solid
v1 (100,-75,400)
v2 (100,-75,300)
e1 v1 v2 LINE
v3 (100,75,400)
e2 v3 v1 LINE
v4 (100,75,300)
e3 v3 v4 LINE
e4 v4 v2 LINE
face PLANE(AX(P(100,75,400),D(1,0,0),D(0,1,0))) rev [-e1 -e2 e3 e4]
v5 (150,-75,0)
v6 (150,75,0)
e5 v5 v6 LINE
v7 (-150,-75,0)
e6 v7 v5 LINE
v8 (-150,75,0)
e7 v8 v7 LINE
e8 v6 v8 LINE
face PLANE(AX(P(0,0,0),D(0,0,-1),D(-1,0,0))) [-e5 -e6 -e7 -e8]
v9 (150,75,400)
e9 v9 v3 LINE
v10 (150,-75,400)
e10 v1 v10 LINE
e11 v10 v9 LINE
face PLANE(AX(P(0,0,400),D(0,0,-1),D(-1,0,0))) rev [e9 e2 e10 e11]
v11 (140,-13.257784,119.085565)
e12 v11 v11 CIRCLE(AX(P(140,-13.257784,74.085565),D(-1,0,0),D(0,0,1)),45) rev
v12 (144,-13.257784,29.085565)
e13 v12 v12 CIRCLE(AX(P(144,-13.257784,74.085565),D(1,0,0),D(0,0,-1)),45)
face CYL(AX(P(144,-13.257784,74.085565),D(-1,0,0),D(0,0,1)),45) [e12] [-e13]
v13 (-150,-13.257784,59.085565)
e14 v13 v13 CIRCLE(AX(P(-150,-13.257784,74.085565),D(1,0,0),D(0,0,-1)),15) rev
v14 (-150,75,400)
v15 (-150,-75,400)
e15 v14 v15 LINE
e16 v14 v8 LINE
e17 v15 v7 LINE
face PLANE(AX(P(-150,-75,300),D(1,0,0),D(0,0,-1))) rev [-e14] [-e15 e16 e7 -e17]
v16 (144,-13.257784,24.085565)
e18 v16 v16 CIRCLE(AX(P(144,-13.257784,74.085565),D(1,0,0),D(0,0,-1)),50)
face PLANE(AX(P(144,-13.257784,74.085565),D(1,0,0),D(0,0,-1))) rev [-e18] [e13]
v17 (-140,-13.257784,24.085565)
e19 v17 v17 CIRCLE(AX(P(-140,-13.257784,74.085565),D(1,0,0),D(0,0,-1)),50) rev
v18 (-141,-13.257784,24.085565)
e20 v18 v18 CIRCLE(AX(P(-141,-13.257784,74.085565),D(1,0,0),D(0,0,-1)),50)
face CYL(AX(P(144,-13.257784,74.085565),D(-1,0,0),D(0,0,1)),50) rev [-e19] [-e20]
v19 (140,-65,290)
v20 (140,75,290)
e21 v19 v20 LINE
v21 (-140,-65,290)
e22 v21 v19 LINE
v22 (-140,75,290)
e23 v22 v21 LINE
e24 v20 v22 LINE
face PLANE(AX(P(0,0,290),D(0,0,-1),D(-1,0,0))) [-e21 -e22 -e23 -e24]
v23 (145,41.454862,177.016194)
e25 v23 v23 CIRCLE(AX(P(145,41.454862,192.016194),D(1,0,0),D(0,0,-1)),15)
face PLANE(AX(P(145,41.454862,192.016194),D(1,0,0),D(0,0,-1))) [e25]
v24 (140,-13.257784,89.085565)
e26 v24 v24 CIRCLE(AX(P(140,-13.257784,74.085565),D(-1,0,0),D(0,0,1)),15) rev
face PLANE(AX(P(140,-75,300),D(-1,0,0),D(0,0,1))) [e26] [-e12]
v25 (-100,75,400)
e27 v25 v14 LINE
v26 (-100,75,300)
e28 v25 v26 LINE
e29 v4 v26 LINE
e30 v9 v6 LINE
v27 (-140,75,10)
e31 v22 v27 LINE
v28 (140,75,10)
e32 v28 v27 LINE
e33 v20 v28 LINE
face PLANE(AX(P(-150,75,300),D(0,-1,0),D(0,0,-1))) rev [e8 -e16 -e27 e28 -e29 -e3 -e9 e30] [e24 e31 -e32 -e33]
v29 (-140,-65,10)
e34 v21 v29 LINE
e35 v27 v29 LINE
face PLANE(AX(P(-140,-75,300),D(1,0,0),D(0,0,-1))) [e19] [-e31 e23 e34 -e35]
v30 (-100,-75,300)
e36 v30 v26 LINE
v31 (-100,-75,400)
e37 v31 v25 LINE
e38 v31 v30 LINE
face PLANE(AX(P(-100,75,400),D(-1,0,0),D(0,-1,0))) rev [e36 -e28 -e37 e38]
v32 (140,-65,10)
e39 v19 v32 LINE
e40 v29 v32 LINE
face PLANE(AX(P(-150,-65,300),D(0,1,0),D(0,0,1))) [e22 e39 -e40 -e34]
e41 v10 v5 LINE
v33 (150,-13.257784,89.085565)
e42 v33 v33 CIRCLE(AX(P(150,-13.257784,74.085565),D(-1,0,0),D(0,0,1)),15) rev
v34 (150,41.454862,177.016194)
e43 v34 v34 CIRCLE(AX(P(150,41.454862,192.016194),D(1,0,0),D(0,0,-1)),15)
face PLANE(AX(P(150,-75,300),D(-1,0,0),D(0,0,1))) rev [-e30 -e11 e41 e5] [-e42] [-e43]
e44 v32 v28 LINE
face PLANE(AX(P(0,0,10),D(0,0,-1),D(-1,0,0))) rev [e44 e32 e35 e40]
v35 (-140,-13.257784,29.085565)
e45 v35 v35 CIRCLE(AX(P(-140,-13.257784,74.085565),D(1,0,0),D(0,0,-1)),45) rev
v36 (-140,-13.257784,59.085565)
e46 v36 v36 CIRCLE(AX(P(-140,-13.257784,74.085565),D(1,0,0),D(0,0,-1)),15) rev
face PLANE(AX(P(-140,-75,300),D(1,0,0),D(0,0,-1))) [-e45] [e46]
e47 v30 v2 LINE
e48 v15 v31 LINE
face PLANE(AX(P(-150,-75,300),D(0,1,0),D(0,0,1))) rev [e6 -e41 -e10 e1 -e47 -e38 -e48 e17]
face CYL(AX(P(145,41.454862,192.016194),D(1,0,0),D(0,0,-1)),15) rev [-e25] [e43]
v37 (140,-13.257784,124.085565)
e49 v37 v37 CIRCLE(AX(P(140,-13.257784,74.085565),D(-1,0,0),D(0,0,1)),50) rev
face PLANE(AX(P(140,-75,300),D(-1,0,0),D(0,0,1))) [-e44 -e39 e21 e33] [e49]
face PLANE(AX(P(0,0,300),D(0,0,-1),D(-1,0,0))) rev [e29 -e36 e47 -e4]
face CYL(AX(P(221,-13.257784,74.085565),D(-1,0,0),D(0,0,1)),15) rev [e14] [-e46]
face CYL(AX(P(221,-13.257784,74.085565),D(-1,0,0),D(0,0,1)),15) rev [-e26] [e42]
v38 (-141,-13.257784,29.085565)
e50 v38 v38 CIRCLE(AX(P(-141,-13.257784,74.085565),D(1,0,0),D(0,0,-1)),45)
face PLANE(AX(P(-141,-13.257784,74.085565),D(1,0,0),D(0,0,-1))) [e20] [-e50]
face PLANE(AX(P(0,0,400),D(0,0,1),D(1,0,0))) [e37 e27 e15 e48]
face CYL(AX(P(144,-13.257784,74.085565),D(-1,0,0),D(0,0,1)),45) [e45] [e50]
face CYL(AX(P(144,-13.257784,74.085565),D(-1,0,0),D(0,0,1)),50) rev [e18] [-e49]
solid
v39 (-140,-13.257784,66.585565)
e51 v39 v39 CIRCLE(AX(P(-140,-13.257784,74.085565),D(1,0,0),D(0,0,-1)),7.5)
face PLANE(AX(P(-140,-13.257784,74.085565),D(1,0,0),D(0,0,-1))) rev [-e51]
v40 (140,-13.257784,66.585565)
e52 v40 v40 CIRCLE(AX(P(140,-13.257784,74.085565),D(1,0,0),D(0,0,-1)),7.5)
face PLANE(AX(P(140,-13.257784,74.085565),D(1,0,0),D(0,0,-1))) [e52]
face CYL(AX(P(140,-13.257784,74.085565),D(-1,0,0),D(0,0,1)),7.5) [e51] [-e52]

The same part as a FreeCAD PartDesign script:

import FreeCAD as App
import Part
import Sketcher


def faces_at(feature, points):
    """Names of the faces that lie closest to the given points."""
    faces = feature.Shape.Faces
    near = lambda p: min(range(len(faces)), key=lambda i: faces[i].distToShape(Part.Vertex(*p))[0])
    return sorted({f"Face{near(p) + 1}" for p in points})


def add_polygon(sketch, points):
    """Adds a closed chain of lines whose ends are joined by coincident constraints."""
    first, n = sketch.GeometryCount, len(points)
    for a, b in zip(points, points[1:] + points[:1]):
        sketch.addGeometry(Part.LineSegment(App.Vector(*a, 0), App.Vector(*b, 0)), False)
    for i in range(n):
        sketch.addConstraint(Sketcher.Constraint("Coincident", first + i, 2, first + (i + 1) % n, 1))

doc = App.newDocument("Part")
body = doc.addObject("PartDesign::Body", "Body")

# Sketch on XY plane
sketch1 = body.newObject("Sketcher::SketchObject", "Sketch")
sketch1.AttachmentSupport = (doc.getObject("XY_Plane"), [""])
sketch1.MapMode = "FlatFace"
add_polygon(sketch1, [(-150, 75), (-150, -75), (150, -75), (150, 75)])  # lines 0-3
sketch1.addConstraint([
    Sketcher.Constraint("Vertical", 0),
    Sketcher.Constraint("Horizontal", 1),
    Sketcher.Constraint("Vertical", 2),
    Sketcher.Constraint("Horizontal", 3),
    Sketcher.Constraint("Symmetric", 0, 2, 2, 2, -1, 1),
    Sketcher.Constraint("DistanceX", 1, 1, 1, 2, 300.0),
    Sketcher.Constraint("DistanceY", 0, 2, 0, 1, 150.0),
])
pad1 = body.newObject("PartDesign::Pad", "Pad")
pad1.Profile = sketch1
pad1.Length = 300
doc.recompute()

thickness = body.newObject("PartDesign::Thickness", "Thickness")
thickness.Base = (pad1, faces_at(pad1, [(0, 75, 150)]))
thickness.Value = 10
thickness.Reversed = True
thickness.Join = "Intersection"

# Sketch on YZ plane
sketch2 = body.newObject("Sketcher::SketchObject", "Sketch001")
sketch2.AttachmentSupport = (doc.getObject("YZ_Plane"), [""])
sketch2.MapMode = "FlatFace"
sketch2.AttachmentOffset = App.Placement(App.Vector(0, 0, -140), App.Rotation())
sketch2.addGeometry([
    Part.Circle(App.Vector(-13, 74, 0), App.Vector(0, 0, 1), 50),
    Part.Circle(App.Vector(-13, 74, 0), App.Vector(0, 0, 1), 45),
], False)
sketch2.addConstraint([
    Sketcher.Constraint("Coincident", 1, 3, 0, 3),
    Sketcher.Constraint("Diameter", 0, 100.0),
    Sketcher.Constraint("Diameter", 1, 90.0),
    Sketcher.Constraint("DistanceX", 0, 3, -1, 1, 13.257784),
    Sketcher.Constraint("DistanceY", -1, 1, 0, 3, 74.085565),
])
pocket1 = body.newObject("PartDesign::Pocket", "Pocket")
pocket1.Profile = sketch2
pocket1.Type = "TwoLengths"
pocket1.Length = 284
pocket1.Length2 = 1
pocket1.Reversed = True

# Sketch on YZ plane
sketch3 = body.newObject("Sketcher::SketchObject", "Sketch002")
sketch3.AttachmentSupport = (doc.getObject("YZ_Plane"), [""])
sketch3.MapMode = "FlatFace"
sketch3.AttachmentOffset = App.Placement(App.Vector(0, 0, -140), App.Rotation())
sketch3.addGeometry(Part.Circle(App.Vector(-13, 74, 0), App.Vector(0, 0, 1), 15), False)
sketch3.addConstraint([
    Sketcher.Constraint("Diameter", 0, 30.0),
    Sketcher.Constraint("DistanceX", 0, 3, -1, 1, 13.257784),
    Sketcher.Constraint("DistanceY", -1, 1, 0, 3, 74.085565),
])
pocket2 = body.newObject("PartDesign::Pocket", "Pocket001")
pocket2.Profile = sketch3
pocket2.Type = "ThroughAll"
pocket2.Midplane = True

# Sketch on XY plane
sketch4 = body.newObject("Sketcher::SketchObject", "Sketch003")
sketch4.AttachmentSupport = (doc.getObject("XY_Plane"), [""])
sketch4.MapMode = "FlatFace"
sketch4.AttachmentOffset = App.Placement(App.Vector(0, 0, 300), App.Rotation())
add_polygon(sketch4, [(-150, 75), (-150, -75), (-100, -75), (-100, 75)])  # lines 0-3
add_polygon(sketch4, [(100, 75), (100, -75), (150, -75), (150, 75)])  # lines 4-7
sketch4.addConstraint([
    Sketcher.Constraint("Vertical", 0),
    Sketcher.Constraint("Horizontal", 1),
    Sketcher.Constraint("Vertical", 2),
    Sketcher.Constraint("Horizontal", 3),
    Sketcher.Constraint("Vertical", 4),
    Sketcher.Constraint("Horizontal", 5),
    Sketcher.Constraint("Vertical", 6),
    Sketcher.Constraint("Horizontal", 7),
    Sketcher.Constraint("Symmetric", 2, 2, 4, 2, -1, 1),
    Sketcher.Constraint("Symmetric", 0, 2, 6, 2, -1, 1),
    Sketcher.Constraint("Horizontal", 1, 2, 4, 2),
    Sketcher.Constraint("DistanceX", 1, 1, 1, 2, 50.0),
    Sketcher.Constraint("DistanceY", 0, 2, 0, 1, 150.0),
    Sketcher.Constraint("DistanceX", 0, 2, -1, 1, 150.0),
])
pad2 = body.newObject("PartDesign::Pad", "Pad001")
pad2.Profile = sketch4
pad2.Length = 100

# Sketch on YZ plane
sketch5 = body.newObject("Sketcher::SketchObject", "Sketch004")
sketch5.AttachmentSupport = (doc.getObject("YZ_Plane"), [""])
sketch5.MapMode = "FlatFace"
sketch5.AttachmentOffset = App.Placement(App.Vector(0, 0, 150), App.Rotation())
sketch5.addGeometry(Part.Circle(App.Vector(41, 192, 0), App.Vector(0, 0, 1), 15), False)
sketch5.addConstraint([
    Sketcher.Constraint("Diameter", 0, 30.0),
    Sketcher.Constraint("DistanceX", -1, 1, 0, 3, 41.454862),
    Sketcher.Constraint("DistanceY", -1, 1, 0, 3, 192.016194),
])
pocket3 = body.newObject("PartDesign::Pocket", "Pocket002")
pocket3.Profile = sketch5
pocket3.Length = 5
body2 = doc.addObject("PartDesign::Body", "Body001")

# Sketch on YZ plane
sketch6 = body2.newObject("Sketcher::SketchObject", "Sketch005")
sketch6.AttachmentSupport = (doc.getObject("YZ_Plane001"), [""])
sketch6.MapMode = "FlatFace"
sketch6.AttachmentOffset = App.Placement(App.Vector(0, 0, -140), App.Rotation())
sketch6.addGeometry(Part.Circle(App.Vector(-13, 74, 0), App.Vector(0, 0, 1), 8), False)
sketch6.addConstraint([
    Sketcher.Constraint("Diameter", 0, 15.0),
    Sketcher.Constraint("DistanceX", 0, 3, -1, 1, 13.257784),
    Sketcher.Constraint("DistanceY", -1, 1, 0, 3, 74.085565),
])
pad3 = body2.newObject("PartDesign::Pad", "Pad002")
pad3.Profile = sketch6
pad3.Length = 280

doc.recompute()
